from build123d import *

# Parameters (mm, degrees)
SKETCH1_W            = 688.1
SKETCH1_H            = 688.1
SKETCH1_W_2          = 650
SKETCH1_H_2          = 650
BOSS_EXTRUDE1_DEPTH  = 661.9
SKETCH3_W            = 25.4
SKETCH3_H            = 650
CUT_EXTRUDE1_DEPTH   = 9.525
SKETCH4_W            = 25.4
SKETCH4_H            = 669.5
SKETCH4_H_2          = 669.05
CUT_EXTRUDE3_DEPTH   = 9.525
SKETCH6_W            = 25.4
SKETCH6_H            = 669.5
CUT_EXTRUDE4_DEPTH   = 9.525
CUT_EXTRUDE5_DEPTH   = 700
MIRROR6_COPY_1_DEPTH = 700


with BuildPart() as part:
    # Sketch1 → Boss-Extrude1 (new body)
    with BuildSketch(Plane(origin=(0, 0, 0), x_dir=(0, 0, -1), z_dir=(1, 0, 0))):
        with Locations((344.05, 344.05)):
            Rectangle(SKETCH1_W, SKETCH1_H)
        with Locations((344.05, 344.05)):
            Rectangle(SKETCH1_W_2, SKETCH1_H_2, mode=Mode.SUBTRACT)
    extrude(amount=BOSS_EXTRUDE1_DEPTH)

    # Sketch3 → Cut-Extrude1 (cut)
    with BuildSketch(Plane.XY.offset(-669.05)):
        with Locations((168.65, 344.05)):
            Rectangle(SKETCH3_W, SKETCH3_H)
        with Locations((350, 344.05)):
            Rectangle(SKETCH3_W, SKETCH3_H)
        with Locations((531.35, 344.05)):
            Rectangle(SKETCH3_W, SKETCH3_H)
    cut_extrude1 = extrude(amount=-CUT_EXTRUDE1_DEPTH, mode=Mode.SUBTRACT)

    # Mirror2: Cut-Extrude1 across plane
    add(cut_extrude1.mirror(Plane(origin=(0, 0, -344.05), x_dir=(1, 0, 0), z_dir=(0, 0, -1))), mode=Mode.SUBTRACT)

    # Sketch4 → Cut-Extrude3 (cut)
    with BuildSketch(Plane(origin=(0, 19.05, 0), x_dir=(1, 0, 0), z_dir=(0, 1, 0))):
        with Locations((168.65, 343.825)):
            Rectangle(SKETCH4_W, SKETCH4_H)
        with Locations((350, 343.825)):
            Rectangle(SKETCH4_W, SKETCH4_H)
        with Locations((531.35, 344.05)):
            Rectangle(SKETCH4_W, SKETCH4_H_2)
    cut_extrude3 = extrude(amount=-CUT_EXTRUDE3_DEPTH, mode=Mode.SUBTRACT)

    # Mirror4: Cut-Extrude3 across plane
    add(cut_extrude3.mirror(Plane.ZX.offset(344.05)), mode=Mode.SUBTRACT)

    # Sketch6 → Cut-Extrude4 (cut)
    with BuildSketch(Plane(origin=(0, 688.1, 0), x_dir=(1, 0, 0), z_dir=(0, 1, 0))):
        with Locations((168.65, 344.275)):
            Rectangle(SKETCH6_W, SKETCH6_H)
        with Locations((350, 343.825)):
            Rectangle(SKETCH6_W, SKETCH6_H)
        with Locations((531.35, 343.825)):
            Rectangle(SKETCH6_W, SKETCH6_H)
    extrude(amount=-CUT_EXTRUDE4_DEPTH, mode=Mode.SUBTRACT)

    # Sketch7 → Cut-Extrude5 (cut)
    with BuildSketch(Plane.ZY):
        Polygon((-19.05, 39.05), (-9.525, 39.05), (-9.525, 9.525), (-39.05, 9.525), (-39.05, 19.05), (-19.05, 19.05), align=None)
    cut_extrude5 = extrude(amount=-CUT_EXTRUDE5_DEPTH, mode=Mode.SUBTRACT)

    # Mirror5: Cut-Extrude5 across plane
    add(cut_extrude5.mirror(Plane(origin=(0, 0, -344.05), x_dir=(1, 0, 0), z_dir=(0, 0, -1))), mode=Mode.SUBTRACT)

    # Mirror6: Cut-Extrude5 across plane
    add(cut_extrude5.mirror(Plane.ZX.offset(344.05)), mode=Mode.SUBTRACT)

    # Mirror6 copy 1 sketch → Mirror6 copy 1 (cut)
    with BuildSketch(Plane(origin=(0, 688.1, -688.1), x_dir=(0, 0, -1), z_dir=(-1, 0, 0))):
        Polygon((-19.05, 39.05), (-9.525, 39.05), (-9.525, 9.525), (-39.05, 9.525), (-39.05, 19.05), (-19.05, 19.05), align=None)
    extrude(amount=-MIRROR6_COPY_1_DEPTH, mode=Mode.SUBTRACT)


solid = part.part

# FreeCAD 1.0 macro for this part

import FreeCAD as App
import Part
import Sketcher

doc = App.newDocument("Part")
body = doc.addObject("PartDesign::Body", "Body")

sketch1 = body.newObject("Sketcher::SketchObject", "Sketch")
sketch1.AttachmentSupport = (doc.getObject("YZ_Plane"), [""])
sketch1.MapMode = "FlatFace"
sketch1.addGeometry([
    Part.LineSegment(App.Vector(688, 0, 0), App.Vector(0, 0, 0)),
    Part.LineSegment(App.Vector(0, 0, 0), App.Vector(0, -688, 0)),
    Part.LineSegment(App.Vector(0, -688, 0), App.Vector(688, -688, 0)),
    Part.LineSegment(App.Vector(688, -688, 0), App.Vector(688, 0, 0)),
    Part.LineSegment(App.Vector(19, -669, 0), App.Vector(19, -19, 0)),
    Part.LineSegment(App.Vector(19, -19, 0), App.Vector(669, -19, 0)),
    Part.LineSegment(App.Vector(669, -19, 0), App.Vector(669, -669, 0)),
    Part.LineSegment(App.Vector(669, -669, 0), App.Vector(19, -669, 0)),
], False)
sketch1.addConstraint([
    Sketcher.Constraint("Coincident", 0, 2, 1, 1),
    Sketcher.Constraint("Coincident", 1, 2, 2, 1),
    Sketcher.Constraint("Coincident", 2, 2, 3, 1),
    Sketcher.Constraint("Coincident", 3, 2, 0, 1),
    Sketcher.Constraint("Coincident", 4, 2, 5, 1),
    Sketcher.Constraint("Coincident", 5, 2, 6, 1),
    Sketcher.Constraint("Coincident", 6, 2, 7, 1),
    Sketcher.Constraint("Coincident", 7, 2, 4, 1),
    Sketcher.Constraint("Horizontal", 0),
    Sketcher.Constraint("Vertical", 1),
    Sketcher.Constraint("Horizontal", 2),
    Sketcher.Constraint("Vertical", 3),
    Sketcher.Constraint("Vertical", 4),
    Sketcher.Constraint("Horizontal", 5),
    Sketcher.Constraint("Vertical", 6),
    Sketcher.Constraint("Horizontal", 7),
    Sketcher.Constraint("Coincident", 0, 2, -1, 1),
    Sketcher.Constraint("Equal", 2, 1),
    Sketcher.Constraint("Equal", 7, 4),
    Sketcher.Constraint("DistanceX", 5, 1, 5, 2, 650.0),
    Sketcher.Constraint("DistanceX", 0, 2, 0, 1, 688.1),
    Sketcher.Constraint("DistanceX", -1, 1, 4, 2, 19.05),
    Sketcher.Constraint("DistanceY", 4, 2, -1, 1, 19.05),
])
pad1 = body.newObject("PartDesign::Pad", "Pad")
pad1.Profile = sketch1
pad1.Length = 661.9

sketch2 = body.newObject("Sketcher::SketchObject", "Sketch001")
sketch2.AttachmentSupport = (doc.getObject("XY_Plane"), [""])
sketch2.MapMode = "FlatFace"
sketch2.AttachmentOffset = App.Placement(App.Vector(0, 0, -669.05), App.Rotation())
sketch2.addGeometry([
    Part.LineSegment(App.Vector(156, 669, 0), App.Vector(156, 19, 0)),
    Part.LineSegment(App.Vector(156, 19, 0), App.Vector(181, 19, 0)),
    Part.LineSegment(App.Vector(181, 19, 0), App.Vector(181, 669, 0)),
    Part.LineSegment(App.Vector(181, 669, 0), App.Vector(156, 669, 0)),
    Part.LineSegment(App.Vector(337, 669, 0), App.Vector(337, 19, 0)),
    Part.LineSegment(App.Vector(337, 19, 0), App.Vector(363, 19, 0)),
    Part.LineSegment(App.Vector(363, 19, 0), App.Vector(363, 669, 0)),
    Part.LineSegment(App.Vector(363, 669, 0), App.Vector(337, 669, 0)),
    Part.LineSegment(App.Vector(519, 669, 0), App.Vector(519, 19, 0)),
    Part.LineSegment(App.Vector(519, 19, 0), App.Vector(544, 19, 0)),
    Part.LineSegment(App.Vector(544, 19, 0), App.Vector(544, 669, 0)),
    Part.LineSegment(App.Vector(544, 669, 0), App.Vector(519, 669, 0)),
], False)
sketch2.addConstraint([
    Sketcher.Constraint("Coincident", 0, 2, 1, 1),
    Sketcher.Constraint("Coincident", 1, 2, 2, 1),
    Sketcher.Constraint("Coincident", 2, 2, 3, 1),
    Sketcher.Constraint("Coincident", 3, 2, 0, 1),
    Sketcher.Constraint("Coincident", 4, 2, 5, 1),
    Sketcher.Constraint("Coincident", 5, 2, 6, 1),
    Sketcher.Constraint("Coincident", 6, 2, 7, 1),
    Sketcher.Constraint("Coincident", 7, 2, 4, 1),
    Sketcher.Constraint("Coincident", 8, 2, 9, 1),
    Sketcher.Constraint("Coincident", 9, 2, 10, 1),
    Sketcher.Constraint("Coincident", 10, 2, 11, 1),
    Sketcher.Constraint("Coincident", 11, 2, 8, 1),
    Sketcher.Constraint("Vertical", 0),
    Sketcher.Constraint("Horizontal", 1),
    Sketcher.Constraint("Vertical", 2),
    Sketcher.Constraint("Horizontal", 3),
    Sketcher.Constraint("Vertical", 4),
    Sketcher.Constraint("Horizontal", 5),
    Sketcher.Constraint("Vertical", 6),
    Sketcher.Constraint("Horizontal", 7),
    Sketcher.Constraint("Vertical", 8),
    Sketcher.Constraint("Horizontal", 9),
    Sketcher.Constraint("Vertical", 10),
    Sketcher.Constraint("Horizontal", 11),
    Sketcher.Constraint("Horizontal", 1, 2, 4, 2),
    Sketcher.Constraint("Horizontal", 3, 2, 6, 2),
    Sketcher.Constraint("Horizontal", 5, 2, 8, 2),
    Sketcher.Constraint("Horizontal", 7, 2, 10, 2),
    Sketcher.Constraint("Equal", 3, 5),
    Sketcher.Constraint("Equal", 7, 9),
    Sketcher.Constraint("DistanceY", 0, 2, 0, 1, 650.0),
    Sketcher.Constraint("DistanceX", 1, 1, 1, 2, 25.4),
    Sketcher.Constraint("DistanceX", -1, 1, 4, 2, 337.3),
    Sketcher.Constraint("DistanceX", 1, 2, 8, 2, 337.3),
    Sketcher.Constraint("DistanceX", -1, 1, 0, 2, 155.95),
    Sketcher.Constraint("DistanceY", -1, 1, 0, 2, 19.05),
])
pocket1 = body.newObject("PartDesign::Pocket", "Pocket")
pocket1.Profile = sketch2
pocket1.Length = 9.525
doc.recompute()

datumplane = body.newObject("PartDesign::Plane", "DatumPlane")
datumplane.AttachmentSupport = (doc.getObject("XY_Plane"), [""])
datumplane.MapMode = "FlatFace"
datumplane.AttachmentOffset = App.Placement(App.Vector(0, 0, -344.05), App.Rotation())
mirrored = body.newObject("PartDesign::Mirrored", "Mirrored")
mirrored.Originals = [pocket1]
mirrored.MirrorPlane = (datumplane, [""])
body.Tip = mirrored

sketch3 = body.newObject("Sketcher::SketchObject", "Sketch002")
sketch3.AttachmentSupport = (doc.getObject("XZ_Plane"), [""])
sketch3.MapMode = "FlatFace"
sketch3.AttachmentOffset = App.Placement(App.Vector(0, 0, -19.05), App.Rotation())
sketch3.addGeometry([
    Part.LineSegment(App.Vector(156, -679, 0), App.Vector(156, -9, 0)),
    Part.LineSegment(App.Vector(156, -9, 0), App.Vector(181, -9, 0)),
    Part.LineSegment(App.Vector(181, -9, 0), App.Vector(181, -679, 0)),
    Part.LineSegment(App.Vector(181, -679, 0), App.Vector(156, -679, 0)),
    Part.LineSegment(App.Vector(337, -679, 0), App.Vector(337, -9, 0)),
    Part.LineSegment(App.Vector(337, -9, 0), App.Vector(363, -9, 0)),
    Part.LineSegment(App.Vector(363, -9, 0), App.Vector(363, -679, 0)),
    Part.LineSegment(App.Vector(363, -679, 0), App.Vector(337, -679, 0)),
    Part.LineSegment(App.Vector(519, -679, 0), App.Vector(519, -10, 0)),
    Part.LineSegment(App.Vector(519, -10, 0), App.Vector(544, -10, 0)),
    Part.LineSegment(App.Vector(544, -10, 0), App.Vector(544, -679, 0)),
    Part.LineSegment(App.Vector(544, -679, 0), App.Vector(519, -679, 0)),
], False)
sketch3.addConstraint([
    Sketcher.Constraint("Coincident", 0, 2, 1, 1),
    Sketcher.Constraint("Coincident", 1, 2, 2, 1),
    Sketcher.Constraint("Coincident", 2, 2, 3, 1),
    Sketcher.Constraint("Coincident", 3, 2, 0, 1),
    Sketcher.Constraint("Coincident", 4, 2, 5, 1),
    Sketcher.Constraint("Coincident", 5, 2, 6, 1),
    Sketcher.Constraint("Coincident", 6, 2, 7, 1),
    Sketcher.Constraint("Coincident", 7, 2, 4, 1),
    Sketcher.Constraint("Coincident", 8, 2, 9, 1),
    Sketcher.Constraint("Coincident", 9, 2, 10, 1),
    Sketcher.Constraint("Coincident", 10, 2, 11, 1),
    Sketcher.Constraint("Coincident", 11, 2, 8, 1),
    Sketcher.Constraint("Vertical", 0),
    Sketcher.Constraint("Horizontal", 1),
    Sketcher.Constraint("Vertical", 2),
    Sketcher.Constraint("Horizontal", 3),
    Sketcher.Constraint("Vertical", 4),
    Sketcher.Constraint("Horizontal", 5),
    Sketcher.Constraint("Vertical", 6),
    Sketcher.Constraint("Horizontal", 7),
    Sketcher.Constraint("Vertical", 8),
    Sketcher.Constraint("Horizontal", 9),
    Sketcher.Constraint("Vertical", 10),
    Sketcher.Constraint("Horizontal", 11),
    Sketcher.Constraint("Horizontal", 1, 2, 4, 2),
    Sketcher.Constraint("Horizontal", 3, 2, 6, 2),
    Sketcher.Constraint("Horizontal", 7, 2, 10, 2),
    Sketcher.Constraint("Equal", 3, 5),
    Sketcher.Constraint("Equal", 7, 9),
    Sketcher.Constraint("DistanceX", 1, 1, 1, 2, 25.4),
    Sketcher.Constraint("DistanceY", 0, 1, 0, 2, 669.5),
    Sketcher.Constraint("DistanceY", 8, 1, 8, 2, 669.05),
    Sketcher.Constraint("DistanceX", -1, 1, 4, 2, 337.3),
    Sketcher.Constraint("DistanceX", 1, 2, 8, 2, 337.3),
    Sketcher.Constraint("DistanceX", -1, 1, 0, 2, 155.95),
    Sketcher.Constraint("DistanceY", 0, 2, -1, 1, 9.075),
])
pocket2 = body.newObject("PartDesign::Pocket", "Pocket001")
pocket2.Profile = sketch3
pocket2.Length = 9.525
pocket2.Reversed = True
doc.recompute()

datumplane2 = body.newObject("PartDesign::Plane", "DatumPlane001")
datumplane2.AttachmentSupport = (doc.getObject("XZ_Plane"), [""])
datumplane2.MapMode = "FlatFace"
datumplane2.AttachmentOffset = App.Placement(App.Vector(0, 0, -344.05), App.Rotation())
mirrored2 = body.newObject("PartDesign::Mirrored", "Mirrored001")
mirrored2.Originals = [pocket2]
mirrored2.MirrorPlane = (datumplane2, [""])
body.Tip = mirrored2

sketch4 = body.newObject("Sketcher::SketchObject", "Sketch003")
sketch4.AttachmentSupport = (doc.getObject("XZ_Plane"), [""])
sketch4.MapMode = "FlatFace"
sketch4.AttachmentOffset = App.Placement(App.Vector(0, 0, -688.1), App.Rotation())
sketch4.addGeometry([
    Part.LineSegment(App.Vector(156, -679, 0), App.Vector(156, -10, 0)),
    Part.LineSegment(App.Vector(156, -10, 0), App.Vector(181, -10, 0)),
    Part.LineSegment(App.Vector(181, -10, 0), App.Vector(181, -679, 0)),
    Part.LineSegment(App.Vector(181, -679, 0), App.Vector(156, -679, 0)),
    Part.LineSegment(App.Vector(337, -679, 0), App.Vector(337, -9, 0)),
    Part.LineSegment(App.Vector(337, -9, 0), App.Vector(363, -9, 0)),
    Part.LineSegment(App.Vector(363, -9, 0), App.Vector(363, -679, 0)),
    Part.LineSegment(App.Vector(363, -679, 0), App.Vector(337, -679, 0)),
    Part.LineSegment(App.Vector(519, -679, 0), App.Vector(519, -9, 0)),
    Part.LineSegment(App.Vector(519, -9, 0), App.Vector(544, -9, 0)),
    Part.LineSegment(App.Vector(544, -9, 0), App.Vector(544, -679, 0)),
    Part.LineSegment(App.Vector(544, -679, 0), App.Vector(519, -679, 0)),
], False)
sketch4.addConstraint([
    Sketcher.Constraint("Coincident", 0, 2, 1, 1),
    Sketcher.Constraint("Coincident", 1, 2, 2, 1),
    Sketcher.Constraint("Coincident", 2, 2, 3, 1),
    Sketcher.Constraint("Coincident", 3, 2, 0, 1),
    Sketcher.Constraint("Coincident", 4, 2, 5, 1),
    Sketcher.Constraint("Coincident", 5, 2, 6, 1),
    Sketcher.Constraint("Coincident", 6, 2, 7, 1),
    Sketcher.Constraint("Coincident", 7, 2, 4, 1),
    Sketcher.Constraint("Coincident", 8, 2, 9, 1),
    Sketcher.Constraint("Coincident", 9, 2, 10, 1),
    Sketcher.Constraint("Coincident", 10, 2, 11, 1),
    Sketcher.Constraint("Coincident", 11, 2, 8, 1),
    Sketcher.Constraint("Vertical", 0),
    Sketcher.Constraint("Horizontal", 1),
    Sketcher.Constraint("Vertical", 2),
    Sketcher.Constraint("Horizontal", 3),
    Sketcher.Constraint("Vertical", 4),
    Sketcher.Constraint("Horizontal", 5),
    Sketcher.Constraint("Vertical", 6),
    Sketcher.Constraint("Horizontal", 7),
    Sketcher.Constraint("Vertical", 8),
    Sketcher.Constraint("Horizontal", 9),
    Sketcher.Constraint("Vertical", 10),
    Sketcher.Constraint("Horizontal", 11),
    Sketcher.Constraint("Horizontal", 5, 2, 8, 2),
    Sketcher.Constraint("Horizontal", 7, 2, 10, 2),
    Sketcher.Constraint("Equal", 3, 5),
    Sketcher.Constraint("Equal", 7, 9),
    Sketcher.Constraint("Equal", 2, 4),
    Sketcher.Constraint("DistanceX", 1, 1, 1, 2, 25.4),
    Sketcher.Constraint("DistanceY", 0, 1, 0, 2, 669.5),
    Sketcher.Constraint("DistanceX", -1, 1, 4, 2, 337.3),
    Sketcher.Constraint("DistanceX", 1, 2, 8, 2, 337.3),
    Sketcher.Constraint("DistanceX", -1, 1, 0, 2, 155.95),
    Sketcher.Constraint("DistanceY", 1, 2, 4, 2, 0.45),
    Sketcher.Constraint("DistanceY", 0, 2, -1, 1, 9.525),
])
pocket3 = body.newObject("PartDesign::Pocket", "Pocket002")
pocket3.Profile = sketch4
pocket3.Length = 9.525
pocket3.Reversed = True

sketch5 = body.newObject("Sketcher::SketchObject", "Sketch004")
sketch5.AttachmentSupport = (doc.getObject("YZ_Plane"), [""])
sketch5.MapMode = "FlatFace"
sketch5.addGeometry([
    Part.LineSegment(App.Vector(39, -10, 0), App.Vector(39, -19, 0)),
    Part.LineSegment(App.Vector(39, -19, 0), App.Vector(19, -19, 0)),
    Part.LineSegment(App.Vector(19, -19, 0), App.Vector(19, -39, 0)),
    Part.LineSegment(App.Vector(19, -39, 0), App.Vector(10, -39, 0)),
    Part.LineSegment(App.Vector(10, -39, 0), App.Vector(10, -10, 0)),
    Part.LineSegment(App.Vector(10, -10, 0), App.Vector(39, -10, 0)),
], False)
sketch5.addConstraint([
    Sketcher.Constraint("Coincident", 0, 2, 1, 1),
    Sketcher.Constraint("Coincident", 1, 2, 2, 1),
    Sketcher.Constraint("Coincident", 2, 2, 3, 1),
    Sketcher.Constraint("Coincident", 3, 2, 4, 1),
    Sketcher.Constraint("Coincident", 4, 2, 5, 1),
    Sketcher.Constraint("Coincident", 5, 2, 0, 1),
    Sketcher.Constraint("Vertical", 0),
    Sketcher.Constraint("Horizontal", 1),
    Sketcher.Constraint("Vertical", 2),
    Sketcher.Constraint("Horizontal", 3),
    Sketcher.Constraint("Vertical", 4),
    Sketcher.Constraint("Horizontal", 5),
    Sketcher.Constraint("Equal", 3, 0),
    Sketcher.Constraint("Equal", 1, 2),
    Sketcher.Constraint("DistanceX", 1, 2, 1, 1, 20.0),
    Sketcher.Constraint("DistanceX", 3, 2, 3, 1, 9.525),
    Sketcher.Constraint("DistanceX", -1, 1, 0, 2, 39.05),
    Sketcher.Constraint("DistanceY", 0, 2, -1, 1, 19.05),
])
pocket4 = body.newObject("PartDesign::Pocket", "Pocket003")
pocket4.Profile = sketch5
pocket4.Length = 700
pocket4.Reversed = True
doc.recompute()

datumplane3 = body.newObject("PartDesign::Plane", "DatumPlane002")
datumplane3.AttachmentSupport = (doc.getObject("XY_Plane"), [""])
datumplane3.MapMode = "FlatFace"
datumplane3.AttachmentOffset = App.Placement(App.Vector(0, 0, -344.05), App.Rotation())
mirrored3 = body.newObject("PartDesign::Mirrored", "Mirrored002")
mirrored3.Originals = [pocket4]
mirrored3.MirrorPlane = (datumplane3, [""])
body.Tip = mirrored3
doc.recompute()

datumplane4 = body.newObject("PartDesign::Plane", "DatumPlane003")
datumplane4.AttachmentSupport = (doc.getObject("XZ_Plane"), [""])
datumplane4.MapMode = "FlatFace"
datumplane4.AttachmentOffset = App.Placement(App.Vector(0, 0, -344.05), App.Rotation())
mirrored4 = body.newObject("PartDesign::Mirrored", "Mirrored003")
mirrored4.Originals = [pocket4]
mirrored4.MirrorPlane = (datumplane4, [""])
body.Tip = mirrored4

sketch6 = body.newObject("Sketcher::SketchObject", "Sketch005")
sketch6.AttachmentSupport = (doc.getObject("YZ_Plane"), [""])
sketch6.MapMode = "FlatFace"
sketch6.addGeometry([
    Part.LineSegment(App.Vector(649, -679, 0), App.Vector(649, -669, 0)),
    Part.LineSegment(App.Vector(649, -669, 0), App.Vector(669, -669, 0)),
    Part.LineSegment(App.Vector(669, -669, 0), App.Vector(669, -649, 0)),
    Part.LineSegment(App.Vector(669, -649, 0), App.Vector(679, -649, 0)),
    Part.LineSegment(App.Vector(679, -649, 0), App.Vector(679, -679, 0)),
    Part.LineSegment(App.Vector(679, -679, 0), App.Vector(649, -679, 0)),
], False)
sketch6.addConstraint([
    Sketcher.Constraint("Coincident", 0, 2, 1, 1),
    Sketcher.Constraint("Coincident", 1, 2, 2, 1),
    Sketcher.Constraint("Coincident", 2, 2, 3, 1),
    Sketcher.Constraint("Coincident", 3, 2, 4, 1),
    Sketcher.Constraint("Coincident", 4, 2, 5, 1),
    Sketcher.Constraint("Coincident", 5, 2, 0, 1),
    Sketcher.Constraint("Vertical", 0),
    Sketcher.Constraint("Horizontal", 1),
    Sketcher.Constraint("Vertical", 2),
    Sketcher.Constraint("Horizontal", 3),
    Sketcher.Constraint("Vertical", 4),
    Sketcher.Constraint("Horizontal", 5),
    Sketcher.Constraint("Equal", 3, 0),
    Sketcher.Constraint("Equal", 1, 2),
    Sketcher.Constraint("DistanceX", 1, 1, 1, 2, 20.0),
    Sketcher.Constraint("DistanceX", 3, 1, 3, 2, 9.525),
    Sketcher.Constraint("DistanceX", -1, 1, 0, 2, 649.05),
    Sketcher.Constraint("DistanceY", 0, 2, -1, 1, 669.05),
])
pocket5 = body.newObject("PartDesign::Pocket", "Pocket004")
pocket5.Profile = sketch6
pocket5.Length = 700
pocket5.Reversed = True

doc.recompute()
